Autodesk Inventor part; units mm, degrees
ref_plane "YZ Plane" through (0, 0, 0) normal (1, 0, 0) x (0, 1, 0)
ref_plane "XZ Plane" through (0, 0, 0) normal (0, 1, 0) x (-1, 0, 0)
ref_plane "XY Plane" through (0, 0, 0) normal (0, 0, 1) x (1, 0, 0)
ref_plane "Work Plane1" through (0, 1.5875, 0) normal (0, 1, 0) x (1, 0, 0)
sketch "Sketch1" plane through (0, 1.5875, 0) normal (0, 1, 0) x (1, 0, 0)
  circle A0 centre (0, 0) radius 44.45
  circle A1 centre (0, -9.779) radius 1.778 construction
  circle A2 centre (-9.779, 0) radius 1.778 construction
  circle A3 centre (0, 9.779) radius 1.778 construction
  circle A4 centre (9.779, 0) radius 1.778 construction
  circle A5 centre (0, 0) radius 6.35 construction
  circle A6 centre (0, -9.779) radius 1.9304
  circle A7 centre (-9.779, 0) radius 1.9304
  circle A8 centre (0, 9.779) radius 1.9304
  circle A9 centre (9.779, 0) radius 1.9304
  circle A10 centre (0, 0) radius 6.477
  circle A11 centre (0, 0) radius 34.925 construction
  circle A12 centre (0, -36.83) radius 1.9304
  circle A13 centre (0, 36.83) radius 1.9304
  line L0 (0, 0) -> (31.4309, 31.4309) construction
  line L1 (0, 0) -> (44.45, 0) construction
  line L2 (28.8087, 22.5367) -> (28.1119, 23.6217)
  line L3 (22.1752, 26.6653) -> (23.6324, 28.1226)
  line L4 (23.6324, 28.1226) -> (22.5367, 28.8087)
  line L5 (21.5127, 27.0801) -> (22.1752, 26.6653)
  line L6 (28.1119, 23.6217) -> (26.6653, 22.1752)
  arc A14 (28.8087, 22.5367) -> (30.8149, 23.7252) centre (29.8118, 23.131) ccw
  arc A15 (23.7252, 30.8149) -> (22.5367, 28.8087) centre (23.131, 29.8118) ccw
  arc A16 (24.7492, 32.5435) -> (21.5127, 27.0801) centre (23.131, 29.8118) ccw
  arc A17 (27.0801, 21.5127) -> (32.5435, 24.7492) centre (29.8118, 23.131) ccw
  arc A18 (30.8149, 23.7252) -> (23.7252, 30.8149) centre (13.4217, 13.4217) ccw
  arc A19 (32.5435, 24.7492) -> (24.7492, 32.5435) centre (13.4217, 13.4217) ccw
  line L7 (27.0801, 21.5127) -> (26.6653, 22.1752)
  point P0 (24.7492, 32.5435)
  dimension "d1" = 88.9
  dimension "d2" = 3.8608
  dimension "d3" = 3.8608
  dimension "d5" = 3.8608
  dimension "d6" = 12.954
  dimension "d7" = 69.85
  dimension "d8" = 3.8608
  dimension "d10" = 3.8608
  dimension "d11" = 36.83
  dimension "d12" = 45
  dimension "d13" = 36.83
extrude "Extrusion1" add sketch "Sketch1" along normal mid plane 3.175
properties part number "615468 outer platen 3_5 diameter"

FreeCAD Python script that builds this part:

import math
import FreeCAD as App
import Part
import Sketcher

V = App.Vector
Q = App.Units.Quantity

doc = App.newDocument("Part")
body = doc.addObject("PartDesign::Body", "Body")

# Sketch on XZ plane
sketch1 = doc.addObject("Sketcher::SketchObject", "Sketch")
body.addObject(sketch1)
sketch1.AttachmentSupport = (doc.XZ_Plane, [""])
sketch1.MapMode = "FlatFace"
sketch1.AttachmentOffset = App.Placement(V(0, 0, -0.0625 * 25.4), App.Rotation())
sketch1.addGeometry([
    Part.Circle(V(0, 0, 0), V(0, 0, 1), 44.45),  # 0
    Part.Circle(V(0, 36.83, 0), V(0, 0, 1), 1.9304),  # 1
    Part.Circle(V(0, 9.779, 0), V(0, 0, 1), 1.9304),  # 2
    Part.Circle(V(-9.779, 0, 0), V(0, 0, 1), 1.9304),  # 3
    Part.Circle(V(0, 0, 0), V(0, 0, 1), 6.477),  # 4
    Part.Circle(V(9.779, 0, 0), V(0, 0, 1), 1.9304),  # 5
    Part.Circle(V(0, -9.779, 0), V(0, 0, 1), 1.9304),  # 6
    Part.Circle(V(0, -36.83, 0), V(0, 0, 1), 1.9304),  # 7
    Part.LineSegment(V(28.1119, -23.6217, 0), V(28.8087, -22.5367, 0)),  # 8
    Part.ArcOfCircle(Part.Circle(V(29.8118, -23.131, 0), V(0, 0, 1), 1.165934), math.radians(-30.64096), math.radians(149.354812)),  # 9
    Part.ArcOfCircle(Part.Circle(V(13.4217, -13.4217, 0), V(0, 0, 1), 20.215972), math.radians(-59.358064), math.radians(-30.641936)),  # 10
    Part.ArcOfCircle(Part.Circle(V(23.131, -29.8118, 0), V(0, 0, 1), 1.165883), math.radians(120.645188), math.radians(300.64096)),  # 11
    Part.LineSegment(V(22.5367, -28.8087, 0), V(23.6324, -28.1226, 0)),  # 12
    Part.LineSegment(V(23.6324, -28.1226, 0), V(22.1752, -26.6653, 0)),  # 13
    Part.LineSegment(V(22.1752, -26.6653, 0), V(21.5127, -27.0801, 0)),  # 14
    Part.ArcOfCircle(Part.Circle(V(23.131, -29.8118, 0), V(0, 0, 1), 3.175021), math.radians(120.643136), math.radians(300.641583)),  # 15
    Part.ArcOfCircle(Part.Circle(V(13.4217, -13.4217, 0), V(0, 0, 1), 22.225109), math.radians(-59.358064), math.radians(-30.641936)),  # 16
    Part.ArcOfCircle(Part.Circle(V(29.8118, -23.131, 0), V(0, 0, 1), 3.175072), math.radians(-30.641583), math.radians(149.356864)),  # 17
    Part.LineSegment(V(27.0801, -21.5127, 0), V(26.6653, -22.1752, 0)),  # 18
    Part.LineSegment(V(26.6653, -22.1752, 0), V(28.1119, -23.6217, 0)),  # 19
], False)
sketch1.addConstraint([
    Sketcher.Constraint("Coincident", 8, 2, 9, 2),
    Sketcher.Constraint("Coincident", 9, 1, 10, 2),
    Sketcher.Constraint("Coincident", 10, 1, 11, 2),
    Sketcher.Constraint("Coincident", 11, 1, 12, 1),
    Sketcher.Constraint("Coincident", 12, 2, 13, 1),
    Sketcher.Constraint("Coincident", 13, 2, 14, 1),
    Sketcher.Constraint("Coincident", 14, 2, 15, 1),
    Sketcher.Constraint("Coincident", 15, 2, 16, 1),
    Sketcher.Constraint("Coincident", 16, 2, 17, 1),
    Sketcher.Constraint("Coincident", 17, 2, 18, 1),
    Sketcher.Constraint("Coincident", 18, 2, 19, 1),
    Sketcher.Constraint("Coincident", 19, 2, 8, 1),
    Sketcher.Constraint("Coincident", 0, 3, -1, 1),
    Sketcher.Constraint("Coincident", 4, 3, -1, 1),
    Sketcher.Constraint("Coincident", 15, 3, 11, 3),
    Sketcher.Constraint("Coincident", 16, 3, 10, 3),
    Sketcher.Constraint("Coincident", 17, 3, 9, 3),
    Sketcher.Constraint("PointOnObject", 1, 3, -2),
    Sketcher.Constraint("PointOnObject", 2, 3, -2),
    Sketcher.Constraint("PointOnObject", 3, 3, -1),
    Sketcher.Constraint("PointOnObject", 5, 3, -1),
    Sketcher.Constraint("PointOnObject", 6, 3, -2),
    Sketcher.Constraint("PointOnObject", 7, 3, -2),
    Sketcher.Constraint("Diameter", 0, Q("3.5 in")),
    Sketcher.Constraint("Diameter", 4, Q("0.51 in")),
    Sketcher.Constraint("Diameter", 1, Q("0.152 in")),
    Sketcher.Constraint("Diameter", 2, Q("0.152 in")),
    Sketcher.Constraint("Diameter", 3, Q("0.152 in")),
    Sketcher.Constraint("Diameter", 5, Q("0.152 in")),
    Sketcher.Constraint("Diameter", 6, Q("0.152 in")),
    Sketcher.Constraint("Diameter", 7, Q("0.152 in")),
    Sketcher.Constraint("DistanceY", -1, 1, 1, 3, Q("1.45 in")),
    Sketcher.Constraint("DistanceY", 7, 3, -1, 1, Q("1.45 in")),
    Sketcher.Constraint("Radius", 15, Q("0.125 in")),
    Sketcher.Constraint("Radius", 16, Q("0.875 in")),
    Sketcher.Constraint("Radius", 17, Q("0.125 in")),
    Sketcher.Constraint("Radius", 9, Q("0.0459 in")),
    Sketcher.Constraint("DistanceY", 19, 2, -1, 1, Q("0.93 in")),
    Sketcher.Constraint("DistanceX", 3, 3, 5, 3, Q("0.77 in")),
    Sketcher.Constraint("DistanceY", 6, 3, 2, 3, Q("0.77 in")),
    Sketcher.Constraint("DistanceY", -1, 1, 2, 3, Q("0.385 in")),
    Sketcher.Constraint("DistanceX", 3, 3, -1, 1, Q("0.385 in")),
    Sketcher.Constraint("DistanceY", 10, 1, 12, 2, Q("0.106 in")),
    Sketcher.Constraint("Distance", 12, Q("0.0509 in")),
    Sketcher.Constraint("DistanceX", -1, 1, 9, 3, Q("1.1737 in")),
    Sketcher.Constraint("DistanceY", 11, 3, -1, 1, Q("1.1737 in")),
    Sketcher.Constraint("DistanceX", -1, 1, 8, 2, Q("1.1342 in")),
    Sketcher.Constraint("DistanceY", 11, 1, -1, 1, Q("1.1342 in")),
    Sketcher.Constraint("DistanceX", -1, 1, 12, 2, Q("0.9304 in")),
    Sketcher.Constraint("DistanceY", 12, 2, -1, 1, Q("1.1072 in")),
    Sketcher.Constraint("DistanceX", 9, 3, 9, 1, Q("0.0395 in")),
    Sketcher.Constraint("DistanceX", 11, 3, 15, 2, Q("0.0637 in")),
    Sketcher.Constraint("DistanceY", 16, 2, 9, 3, Q("0.0637 in")),
    Sketcher.Constraint("DistanceY", 12, 2, 16, 2, Q("0.1328 in")),
    Sketcher.Constraint("DistanceY", 9, 1, 17, 2, Q("0.0871 in")),
    Sketcher.Constraint("Distance", 8, 1.2895),
    Sketcher.Constraint("Distance", 13, 2.0609),
    Sketcher.Constraint("Distance", 14, 0.7816),
    Sketcher.Constraint("Distance", 18, 0.7816),
    Sketcher.Constraint("Distance", 19, 2.0457),
    Sketcher.Constraint("DistanceX", -1, 1, 13, 2, 22.1752),
])
pad1 = doc.addObject("PartDesign::Pad", "Pad")
body.addObject(pad1)
pad1.Profile = sketch1
pad1.Length = Q("0.125 in")
pad1.Midplane = True

doc.recompute()
